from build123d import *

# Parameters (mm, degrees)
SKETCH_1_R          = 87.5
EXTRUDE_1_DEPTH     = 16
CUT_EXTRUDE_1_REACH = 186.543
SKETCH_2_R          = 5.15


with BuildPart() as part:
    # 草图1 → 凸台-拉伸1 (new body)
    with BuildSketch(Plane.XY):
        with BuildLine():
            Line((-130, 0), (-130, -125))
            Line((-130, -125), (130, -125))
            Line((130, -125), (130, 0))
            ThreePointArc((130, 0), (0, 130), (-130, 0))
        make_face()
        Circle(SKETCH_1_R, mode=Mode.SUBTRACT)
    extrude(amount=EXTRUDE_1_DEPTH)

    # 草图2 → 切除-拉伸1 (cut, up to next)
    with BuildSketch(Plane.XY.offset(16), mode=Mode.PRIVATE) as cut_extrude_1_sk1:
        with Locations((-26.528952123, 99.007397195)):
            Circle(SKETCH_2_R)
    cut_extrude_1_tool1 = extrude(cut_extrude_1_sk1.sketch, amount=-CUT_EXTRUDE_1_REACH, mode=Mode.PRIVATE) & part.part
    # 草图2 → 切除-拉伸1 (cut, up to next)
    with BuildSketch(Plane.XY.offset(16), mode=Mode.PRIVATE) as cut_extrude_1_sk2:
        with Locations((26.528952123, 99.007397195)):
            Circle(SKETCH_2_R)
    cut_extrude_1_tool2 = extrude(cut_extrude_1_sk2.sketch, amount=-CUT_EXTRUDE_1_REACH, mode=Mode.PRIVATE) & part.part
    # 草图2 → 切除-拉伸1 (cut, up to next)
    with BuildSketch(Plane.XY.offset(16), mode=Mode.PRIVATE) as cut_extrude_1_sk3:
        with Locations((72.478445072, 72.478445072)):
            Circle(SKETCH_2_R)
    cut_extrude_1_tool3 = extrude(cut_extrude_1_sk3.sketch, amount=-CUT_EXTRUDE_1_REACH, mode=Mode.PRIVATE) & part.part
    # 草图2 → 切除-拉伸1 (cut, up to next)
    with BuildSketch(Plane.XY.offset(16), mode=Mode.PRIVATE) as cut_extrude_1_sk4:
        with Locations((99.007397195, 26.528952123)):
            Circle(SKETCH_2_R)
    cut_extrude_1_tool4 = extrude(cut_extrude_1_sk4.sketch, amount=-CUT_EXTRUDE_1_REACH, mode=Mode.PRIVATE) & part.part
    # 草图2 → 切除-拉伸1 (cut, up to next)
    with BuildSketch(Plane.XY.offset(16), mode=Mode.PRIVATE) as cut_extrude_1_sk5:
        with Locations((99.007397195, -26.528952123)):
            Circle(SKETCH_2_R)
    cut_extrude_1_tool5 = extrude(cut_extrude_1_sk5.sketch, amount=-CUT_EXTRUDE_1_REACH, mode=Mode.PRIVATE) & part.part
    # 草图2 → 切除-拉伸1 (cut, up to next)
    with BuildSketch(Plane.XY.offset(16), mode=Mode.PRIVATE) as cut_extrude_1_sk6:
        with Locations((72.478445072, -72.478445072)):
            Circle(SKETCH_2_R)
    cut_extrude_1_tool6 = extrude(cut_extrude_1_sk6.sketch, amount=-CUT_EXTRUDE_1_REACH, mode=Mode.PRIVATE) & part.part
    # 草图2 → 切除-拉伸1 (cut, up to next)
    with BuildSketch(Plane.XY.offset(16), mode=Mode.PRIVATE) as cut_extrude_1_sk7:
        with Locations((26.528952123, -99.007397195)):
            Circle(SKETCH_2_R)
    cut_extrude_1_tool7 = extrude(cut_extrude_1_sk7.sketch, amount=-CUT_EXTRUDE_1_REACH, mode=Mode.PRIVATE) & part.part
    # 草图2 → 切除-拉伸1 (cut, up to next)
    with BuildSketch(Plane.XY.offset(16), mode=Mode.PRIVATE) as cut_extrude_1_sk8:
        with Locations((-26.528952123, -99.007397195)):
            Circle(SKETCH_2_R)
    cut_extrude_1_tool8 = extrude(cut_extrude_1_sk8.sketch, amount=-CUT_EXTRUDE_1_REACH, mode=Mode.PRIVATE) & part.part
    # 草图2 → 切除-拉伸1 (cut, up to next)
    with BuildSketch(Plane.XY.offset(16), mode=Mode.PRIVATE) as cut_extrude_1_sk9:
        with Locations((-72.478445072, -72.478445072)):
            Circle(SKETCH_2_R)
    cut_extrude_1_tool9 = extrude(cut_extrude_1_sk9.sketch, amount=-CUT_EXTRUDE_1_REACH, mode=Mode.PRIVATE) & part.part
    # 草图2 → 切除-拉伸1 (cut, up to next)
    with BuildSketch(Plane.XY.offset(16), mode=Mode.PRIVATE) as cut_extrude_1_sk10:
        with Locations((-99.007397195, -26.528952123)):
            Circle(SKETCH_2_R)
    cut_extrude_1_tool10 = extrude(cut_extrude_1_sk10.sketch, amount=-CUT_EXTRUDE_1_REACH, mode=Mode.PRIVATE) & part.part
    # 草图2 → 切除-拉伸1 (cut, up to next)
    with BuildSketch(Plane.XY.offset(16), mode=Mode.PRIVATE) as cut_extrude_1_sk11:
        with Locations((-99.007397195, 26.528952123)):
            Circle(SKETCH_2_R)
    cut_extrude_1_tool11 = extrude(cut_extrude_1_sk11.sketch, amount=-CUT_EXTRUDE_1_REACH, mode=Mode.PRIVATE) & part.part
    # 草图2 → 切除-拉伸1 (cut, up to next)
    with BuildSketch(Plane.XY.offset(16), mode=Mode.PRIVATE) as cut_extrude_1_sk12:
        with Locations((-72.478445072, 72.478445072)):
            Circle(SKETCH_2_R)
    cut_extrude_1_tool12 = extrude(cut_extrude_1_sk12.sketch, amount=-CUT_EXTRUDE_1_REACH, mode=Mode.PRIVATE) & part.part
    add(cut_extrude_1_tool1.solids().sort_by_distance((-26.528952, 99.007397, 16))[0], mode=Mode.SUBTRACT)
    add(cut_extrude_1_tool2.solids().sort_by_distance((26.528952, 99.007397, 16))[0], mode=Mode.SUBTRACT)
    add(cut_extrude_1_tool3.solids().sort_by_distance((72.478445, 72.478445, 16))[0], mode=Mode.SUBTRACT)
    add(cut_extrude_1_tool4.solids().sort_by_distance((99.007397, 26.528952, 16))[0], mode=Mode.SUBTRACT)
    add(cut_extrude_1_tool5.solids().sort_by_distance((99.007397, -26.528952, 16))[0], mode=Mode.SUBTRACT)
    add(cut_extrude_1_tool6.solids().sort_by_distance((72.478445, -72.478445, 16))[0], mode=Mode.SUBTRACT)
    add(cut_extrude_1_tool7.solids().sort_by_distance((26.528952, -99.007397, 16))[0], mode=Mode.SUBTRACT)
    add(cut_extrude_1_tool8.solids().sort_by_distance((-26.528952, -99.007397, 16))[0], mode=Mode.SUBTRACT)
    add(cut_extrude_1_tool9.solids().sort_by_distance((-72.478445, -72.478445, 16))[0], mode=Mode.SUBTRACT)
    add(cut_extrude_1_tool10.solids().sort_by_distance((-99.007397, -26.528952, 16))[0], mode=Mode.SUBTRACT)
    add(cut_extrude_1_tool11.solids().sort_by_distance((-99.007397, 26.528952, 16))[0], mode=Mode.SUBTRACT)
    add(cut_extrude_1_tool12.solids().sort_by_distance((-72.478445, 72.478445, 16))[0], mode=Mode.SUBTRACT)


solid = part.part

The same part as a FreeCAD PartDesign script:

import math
import FreeCAD as App
import Part
import Sketcher
Q = App.Units.Quantity

doc = App.newDocument("Part")
params = doc.addObject("Spreadsheet::Sheet", "Params")
for row, (alias, value) in enumerate([
    ("sketch1_diameter", "175 mm"),
    ("sketch1_radius", "130 mm"),
    ("sketch1_height", "125 mm"),
    ("pad1_length", "16 mm"),
    ("sketch2_diameter", "10.3 mm"),
    ("sketch3_diameter", "10.3 mm"),
    ("sketch4_diameter", "10.3 mm"),
    ("sketch5_diameter", "10.3 mm"),
    ("sketch6_diameter", "10.3 mm"),
    ("sketch7_diameter", "10.3 mm"),
    ("sketch8_diameter", "10.3 mm"),
    ("sketch9_diameter", "10.3 mm"),
    ("sketch10_diameter", "10.3 mm"),
    ("sketch11_diameter", "10.3 mm"),
    ("sketch12_diameter", "10.3 mm"),
    ("sketch13_diameter", "10.3 mm"),
], start=1):
    params.set(f"A{row}", alias)
    params.set(f"B{row}", "=" + value)
    params.setAlias(f"B{row}", alias)

body = doc.addObject("PartDesign::Body", "Body")

sketch1 = doc.addObject("Sketcher::SketchObject", "Sketch")
body.addObject(sketch1)
sketch1.AttachmentSupport = (doc.XY_Plane, [""])
sketch1.MapMode = "FlatFace"
sketch1.addGeometry([
    Part.LineSegment(App.Vector(-130, 0, 0), App.Vector(-130, -125, 0)),
    Part.LineSegment(App.Vector(-130, -125, 0), App.Vector(130, -125, 0)),
    Part.LineSegment(App.Vector(130, -125, 0), App.Vector(130, 0, 0)),
    Part.ArcOfCircle(Part.Circle(App.Vector(0, 0, 0), App.Vector(0, 0, 1), 130), math.radians(0), math.radians(180)),
    Part.Circle(App.Vector(0, 0, 0), App.Vector(0, 0, 1), 88),
], False)
sketch1.addConstraint([
    Sketcher.Constraint("Coincident", 0, 2, 1, 1),
    Sketcher.Constraint("Coincident", 1, 2, 2, 1),
    Sketcher.Constraint("Tangent", 2, 2, 3, 1),
    Sketcher.Constraint("Tangent", 3, 2, 0, 1),
    Sketcher.Constraint("Vertical", 0),
    Sketcher.Constraint("Horizontal", 1),
    Sketcher.Constraint("Vertical", 2),
    Sketcher.Constraint("Coincident", 3, 3, -1, 1),
    Sketcher.Constraint("Coincident", 4, 3, -1, 1),
    Sketcher.Constraint("Diameter", 4, Q("175 mm")),
    Sketcher.Constraint("Radius", 3, Q("130 mm")),
    Sketcher.Constraint("DistanceY", 0, 2, 0, 1, Q("125 mm")),
])
sketch1.setExpression("Constraints[9]", "Params.sketch1_diameter")
sketch1.setExpression("Constraints[10]", "Params.sketch1_radius")
sketch1.setExpression("Constraints[11]", "Params.sketch1_height")
pad1 = doc.addObject("PartDesign::Pad", "Pad")
body.addObject(pad1)
pad1.Profile = sketch1
pad1.setExpression("Length", "Params.pad1_length")

sketch2 = doc.addObject("Sketcher::SketchObject", "Sketch001")
body.addObject(sketch2)
sketch2.AttachmentSupport = (doc.XY_Plane, [""])
sketch2.MapMode = "FlatFace"
sketch2.AttachmentOffset = App.Placement(App.Vector(0, 0, 16), App.Rotation())
sketch2.addGeometry(Part.Circle(App.Vector(-27, 99, 0), App.Vector(0, 0, 1), 5), False)
sketch2.addConstraint([
    Sketcher.Constraint("Diameter", 0, Q("10.3 mm")),
    Sketcher.Constraint("DistanceX", 0, 3, -1, 1, Q("26.528952 mm")),
    Sketcher.Constraint("DistanceY", -1, 1, 0, 3, Q("99.007397 mm")),
])
sketch2.setExpression("Constraints[0]", "Params.sketch2_diameter")
pocket1 = doc.addObject("PartDesign::Pocket", "Pocket")
body.addObject(pocket1)
pocket1.Profile = sketch2
pocket1.Type = "UpToFirst"

sketch3 = doc.addObject("Sketcher::SketchObject", "Sketch002")
body.addObject(sketch3)
sketch3.AttachmentSupport = (doc.XY_Plane, [""])
sketch3.MapMode = "FlatFace"
sketch3.AttachmentOffset = App.Placement(App.Vector(0, 0, 16), App.Rotation())
sketch3.addGeometry(Part.Circle(App.Vector(27, 99, 0), App.Vector(0, 0, 1), 5), False)
sketch3.addConstraint([
    Sketcher.Constraint("Diameter", 0, Q("10.3 mm")),
    Sketcher.Constraint("DistanceX", -1, 1, 0, 3, Q("26.528952 mm")),
    Sketcher.Constraint("DistanceY", -1, 1, 0, 3, Q("99.007397 mm")),
])
sketch3.setExpression("Constraints[0]", "Params.sketch3_diameter")
pocket2 = doc.addObject("PartDesign::Pocket", "Pocket001")
body.addObject(pocket2)
pocket2.Profile = sketch3
pocket2.Type = "UpToFirst"

sketch4 = doc.addObject("Sketcher::SketchObject", "Sketch003")
body.addObject(sketch4)
sketch4.AttachmentSupport = (doc.XY_Plane, [""])
sketch4.MapMode = "FlatFace"
sketch4.AttachmentOffset = App.Placement(App.Vector(0, 0, 16), App.Rotation())
sketch4.addGeometry(Part.Circle(App.Vector(72, 72, 0), App.Vector(0, 0, 1), 5), False)
sketch4.addConstraint([
    Sketcher.Constraint("Diameter", 0, Q("10.3 mm")),
    Sketcher.Constraint("DistanceX", -1, 1, 0, 3, Q("72.478445 mm")),
    Sketcher.Constraint("DistanceY", -1, 1, 0, 3, Q("72.478445 mm")),
])
sketch4.setExpression("Constraints[0]", "Params.sketch4_diameter")
pocket3 = doc.addObject("PartDesign::Pocket", "Pocket002")
body.addObject(pocket3)
pocket3.Profile = sketch4
pocket3.Type = "UpToFirst"

sketch5 = doc.addObject("Sketcher::SketchObject", "Sketch004")
body.addObject(sketch5)
sketch5.AttachmentSupport = (doc.XY_Plane, [""])
sketch5.MapMode = "FlatFace"
sketch5.AttachmentOffset = App.Placement(App.Vector(0, 0, 16), App.Rotation())
sketch5.addGeometry(Part.Circle(App.Vector(99, 27, 0), App.Vector(0, 0, 1), 5), False)
sketch5.addConstraint([
    Sketcher.Constraint("Diameter", 0, Q("10.3 mm")),
    Sketcher.Constraint("DistanceX", -1, 1, 0, 3, Q("99.007397 mm")),
    Sketcher.Constraint("DistanceY", -1, 1, 0, 3, Q("26.528952 mm")),
])
sketch5.setExpression("Constraints[0]", "Params.sketch5_diameter")
pocket4 = doc.addObject("PartDesign::Pocket", "Pocket003")
body.addObject(pocket4)
pocket4.Profile = sketch5
pocket4.Type = "UpToFirst"

sketch6 = doc.addObject("Sketcher::SketchObject", "Sketch005")
body.addObject(sketch6)
sketch6.AttachmentSupport = (doc.XY_Plane, [""])
sketch6.MapMode = "FlatFace"
sketch6.AttachmentOffset = App.Placement(App.Vector(0, 0, 16), App.Rotation())
sketch6.addGeometry(Part.Circle(App.Vector(99, -27, 0), App.Vector(0, 0, 1), 5), False)
sketch6.addConstraint([
    Sketcher.Constraint("Diameter", 0, Q("10.3 mm")),
    Sketcher.Constraint("DistanceX", -1, 1, 0, 3, Q("99.007397 mm")),
    Sketcher.Constraint("DistanceY", 0, 3, -1, 1, Q("26.528952 mm")),
])
sketch6.setExpression("Constraints[0]", "Params.sketch6_diameter")
pocket5 = doc.addObject("PartDesign::Pocket", "Pocket004")
body.addObject(pocket5)
pocket5.Profile = sketch6
pocket5.Type = "UpToFirst"

sketch7 = doc.addObject("Sketcher::SketchObject", "Sketch006")
body.addObject(sketch7)
sketch7.AttachmentSupport = (doc.XY_Plane, [""])
sketch7.MapMode = "FlatFace"
sketch7.AttachmentOffset = App.Placement(App.Vector(0, 0, 16), App.Rotation())
sketch7.addGeometry(Part.Circle(App.Vector(72, -72, 0), App.Vector(0, 0, 1), 5), False)
sketch7.addConstraint([
    Sketcher.Constraint("Diameter", 0, Q("10.3 mm")),
    Sketcher.Constraint("DistanceX", -1, 1, 0, 3, Q("72.478445 mm")),
    Sketcher.Constraint("DistanceY", 0, 3, -1, 1, Q("72.478445 mm")),
])
sketch7.setExpression("Constraints[0]", "Params.sketch7_diameter")
pocket6 = doc.addObject("PartDesign::Pocket", "Pocket005")
body.addObject(pocket6)
pocket6.Profile = sketch7
pocket6.Type = "UpToFirst"

sketch8 = doc.addObject("Sketcher::SketchObject", "Sketch007")
body.addObject(sketch8)
sketch8.AttachmentSupport = (doc.XY_Plane, [""])
sketch8.MapMode = "FlatFace"
sketch8.AttachmentOffset = App.Placement(App.Vector(0, 0, 16), App.Rotation())
sketch8.addGeometry(Part.Circle(App.Vector(27, -99, 0), App.Vector(0, 0, 1), 5), False)
sketch8.addConstraint([
    Sketcher.Constraint("Diameter", 0, Q("10.3 mm")),
    Sketcher.Constraint("DistanceX", -1, 1, 0, 3, Q("26.528952 mm")),
    Sketcher.Constraint("DistanceY", 0, 3, -1, 1, Q("99.007397 mm")),
])
sketch8.setExpression("Constraints[0]", "Params.sketch8_diameter")
pocket7 = doc.addObject("PartDesign::Pocket", "Pocket006")
body.addObject(pocket7)
pocket7.Profile = sketch8
pocket7.Type = "UpToFirst"

sketch9 = doc.addObject("Sketcher::SketchObject", "Sketch008")
body.addObject(sketch9)
sketch9.AttachmentSupport = (doc.XY_Plane, [""])
sketch9.MapMode = "FlatFace"
sketch9.AttachmentOffset = App.Placement(App.Vector(0, 0, 16), App.Rotation())
sketch9.addGeometry(Part.Circle(App.Vector(-27, -99, 0), App.Vector(0, 0, 1), 5), False)
sketch9.addConstraint([
    Sketcher.Constraint("Diameter", 0, Q("10.3 mm")),
    Sketcher.Constraint("DistanceX", 0, 3, -1, 1, Q("26.528952 mm")),
    Sketcher.Constraint("DistanceY", 0, 3, -1, 1, Q("99.007397 mm")),
])
sketch9.setExpression("Constraints[0]", "Params.sketch9_diameter")
pocket8 = doc.addObject("PartDesign::Pocket", "Pocket007")
body.addObject(pocket8)
pocket8.Profile = sketch9
pocket8.Type = "UpToFirst"

sketch10 = doc.addObject("Sketcher::SketchObject", "Sketch009")
body.addObject(sketch10)
sketch10.AttachmentSupport = (doc.XY_Plane, [""])
sketch10.MapMode = "FlatFace"
sketch10.AttachmentOffset = App.Placement(App.Vector(0, 0, 16), App.Rotation())
sketch10.addGeometry(Part.Circle(App.Vector(-72, -72, 0), App.Vector(0, 0, 1), 5), False)
sketch10.addConstraint([
    Sketcher.Constraint("Diameter", 0, Q("10.3 mm")),
    Sketcher.Constraint("DistanceX", 0, 3, -1, 1, Q("72.478445 mm")),
    Sketcher.Constraint("DistanceY", 0, 3, -1, 1, Q("72.478445 mm")),
])
sketch10.setExpression("Constraints[0]", "Params.sketch10_diameter")
pocket9 = doc.addObject("PartDesign::Pocket", "Pocket008")
body.addObject(pocket9)
pocket9.Profile = sketch10
pocket9.Type = "UpToFirst"

sketch11 = doc.addObject("Sketcher::SketchObject", "Sketch010")
body.addObject(sketch11)
sketch11.AttachmentSupport = (doc.XY_Plane, [""])
sketch11.MapMode = "FlatFace"
sketch11.AttachmentOffset = App.Placement(App.Vector(0, 0, 16), App.Rotation())
sketch11.addGeometry(Part.Circle(App.Vector(-99, -27, 0), App.Vector(0, 0, 1), 5), False)
sketch11.addConstraint([
    Sketcher.Constraint("Diameter", 0, Q("10.3 mm")),
    Sketcher.Constraint("DistanceX", 0, 3, -1, 1, Q("99.007397 mm")),
    Sketcher.Constraint("DistanceY", 0, 3, -1, 1, Q("26.528952 mm")),
])
sketch11.setExpression("Constraints[0]", "Params.sketch11_diameter")
pocket10 = doc.addObject("PartDesign::Pocket", "Pocket009")
body.addObject(pocket10)
pocket10.Profile = sketch11
pocket10.Type = "UpToFirst"

sketch12 = doc.addObject("Sketcher::SketchObject", "Sketch011")
body.addObject(sketch12)
sketch12.AttachmentSupport = (doc.XY_Plane, [""])
sketch12.MapMode = "FlatFace"
sketch12.AttachmentOffset = App.Placement(App.Vector(0, 0, 16), App.Rotation())
sketch12.addGeometry(Part.Circle(App.Vector(-99, 27, 0), App.Vector(0, 0, 1), 5), False)
sketch12.addConstraint([
    Sketcher.Constraint("Diameter", 0, Q("10.3 mm")),
    Sketcher.Constraint("DistanceX", 0, 3, -1, 1, Q("99.007397 mm")),
    Sketcher.Constraint("DistanceY", -1, 1, 0, 3, Q("26.528952 mm")),
])
sketch12.setExpression("Constraints[0]", "Params.sketch12_diameter")
pocket11 = doc.addObject("PartDesign::Pocket", "Pocket010")
body.addObject(pocket11)
pocket11.Profile = sketch12
pocket11.Type = "UpToFirst"

sketch13 = doc.addObject("Sketcher::SketchObject", "Sketch012")
body.addObject(sketch13)
sketch13.AttachmentSupport = (doc.XY_Plane, [""])
sketch13.MapMode = "FlatFace"
sketch13.AttachmentOffset = App.Placement(App.Vector(0, 0, 16), App.Rotation())
sketch13.addGeometry(Part.Circle(App.Vector(-72, 72, 0), App.Vector(0, 0, 1), 5), False)
sketch13.addConstraint([
    Sketcher.Constraint("Diameter", 0, Q("10.3 mm")),
    Sketcher.Constraint("DistanceX", 0, 3, -1, 1, Q("72.478445 mm")),
    Sketcher.Constraint("DistanceY", -1, 1, 0, 3, Q("72.478445 mm")),
])
sketch13.setExpression("Constraints[0]", "Params.sketch13_diameter")
pocket12 = doc.addObject("PartDesign::Pocket", "Pocket011")
body.addObject(pocket12)
pocket12.Profile = sketch13
pocket12.Type = "UpToFirst"

doc.recompute()
